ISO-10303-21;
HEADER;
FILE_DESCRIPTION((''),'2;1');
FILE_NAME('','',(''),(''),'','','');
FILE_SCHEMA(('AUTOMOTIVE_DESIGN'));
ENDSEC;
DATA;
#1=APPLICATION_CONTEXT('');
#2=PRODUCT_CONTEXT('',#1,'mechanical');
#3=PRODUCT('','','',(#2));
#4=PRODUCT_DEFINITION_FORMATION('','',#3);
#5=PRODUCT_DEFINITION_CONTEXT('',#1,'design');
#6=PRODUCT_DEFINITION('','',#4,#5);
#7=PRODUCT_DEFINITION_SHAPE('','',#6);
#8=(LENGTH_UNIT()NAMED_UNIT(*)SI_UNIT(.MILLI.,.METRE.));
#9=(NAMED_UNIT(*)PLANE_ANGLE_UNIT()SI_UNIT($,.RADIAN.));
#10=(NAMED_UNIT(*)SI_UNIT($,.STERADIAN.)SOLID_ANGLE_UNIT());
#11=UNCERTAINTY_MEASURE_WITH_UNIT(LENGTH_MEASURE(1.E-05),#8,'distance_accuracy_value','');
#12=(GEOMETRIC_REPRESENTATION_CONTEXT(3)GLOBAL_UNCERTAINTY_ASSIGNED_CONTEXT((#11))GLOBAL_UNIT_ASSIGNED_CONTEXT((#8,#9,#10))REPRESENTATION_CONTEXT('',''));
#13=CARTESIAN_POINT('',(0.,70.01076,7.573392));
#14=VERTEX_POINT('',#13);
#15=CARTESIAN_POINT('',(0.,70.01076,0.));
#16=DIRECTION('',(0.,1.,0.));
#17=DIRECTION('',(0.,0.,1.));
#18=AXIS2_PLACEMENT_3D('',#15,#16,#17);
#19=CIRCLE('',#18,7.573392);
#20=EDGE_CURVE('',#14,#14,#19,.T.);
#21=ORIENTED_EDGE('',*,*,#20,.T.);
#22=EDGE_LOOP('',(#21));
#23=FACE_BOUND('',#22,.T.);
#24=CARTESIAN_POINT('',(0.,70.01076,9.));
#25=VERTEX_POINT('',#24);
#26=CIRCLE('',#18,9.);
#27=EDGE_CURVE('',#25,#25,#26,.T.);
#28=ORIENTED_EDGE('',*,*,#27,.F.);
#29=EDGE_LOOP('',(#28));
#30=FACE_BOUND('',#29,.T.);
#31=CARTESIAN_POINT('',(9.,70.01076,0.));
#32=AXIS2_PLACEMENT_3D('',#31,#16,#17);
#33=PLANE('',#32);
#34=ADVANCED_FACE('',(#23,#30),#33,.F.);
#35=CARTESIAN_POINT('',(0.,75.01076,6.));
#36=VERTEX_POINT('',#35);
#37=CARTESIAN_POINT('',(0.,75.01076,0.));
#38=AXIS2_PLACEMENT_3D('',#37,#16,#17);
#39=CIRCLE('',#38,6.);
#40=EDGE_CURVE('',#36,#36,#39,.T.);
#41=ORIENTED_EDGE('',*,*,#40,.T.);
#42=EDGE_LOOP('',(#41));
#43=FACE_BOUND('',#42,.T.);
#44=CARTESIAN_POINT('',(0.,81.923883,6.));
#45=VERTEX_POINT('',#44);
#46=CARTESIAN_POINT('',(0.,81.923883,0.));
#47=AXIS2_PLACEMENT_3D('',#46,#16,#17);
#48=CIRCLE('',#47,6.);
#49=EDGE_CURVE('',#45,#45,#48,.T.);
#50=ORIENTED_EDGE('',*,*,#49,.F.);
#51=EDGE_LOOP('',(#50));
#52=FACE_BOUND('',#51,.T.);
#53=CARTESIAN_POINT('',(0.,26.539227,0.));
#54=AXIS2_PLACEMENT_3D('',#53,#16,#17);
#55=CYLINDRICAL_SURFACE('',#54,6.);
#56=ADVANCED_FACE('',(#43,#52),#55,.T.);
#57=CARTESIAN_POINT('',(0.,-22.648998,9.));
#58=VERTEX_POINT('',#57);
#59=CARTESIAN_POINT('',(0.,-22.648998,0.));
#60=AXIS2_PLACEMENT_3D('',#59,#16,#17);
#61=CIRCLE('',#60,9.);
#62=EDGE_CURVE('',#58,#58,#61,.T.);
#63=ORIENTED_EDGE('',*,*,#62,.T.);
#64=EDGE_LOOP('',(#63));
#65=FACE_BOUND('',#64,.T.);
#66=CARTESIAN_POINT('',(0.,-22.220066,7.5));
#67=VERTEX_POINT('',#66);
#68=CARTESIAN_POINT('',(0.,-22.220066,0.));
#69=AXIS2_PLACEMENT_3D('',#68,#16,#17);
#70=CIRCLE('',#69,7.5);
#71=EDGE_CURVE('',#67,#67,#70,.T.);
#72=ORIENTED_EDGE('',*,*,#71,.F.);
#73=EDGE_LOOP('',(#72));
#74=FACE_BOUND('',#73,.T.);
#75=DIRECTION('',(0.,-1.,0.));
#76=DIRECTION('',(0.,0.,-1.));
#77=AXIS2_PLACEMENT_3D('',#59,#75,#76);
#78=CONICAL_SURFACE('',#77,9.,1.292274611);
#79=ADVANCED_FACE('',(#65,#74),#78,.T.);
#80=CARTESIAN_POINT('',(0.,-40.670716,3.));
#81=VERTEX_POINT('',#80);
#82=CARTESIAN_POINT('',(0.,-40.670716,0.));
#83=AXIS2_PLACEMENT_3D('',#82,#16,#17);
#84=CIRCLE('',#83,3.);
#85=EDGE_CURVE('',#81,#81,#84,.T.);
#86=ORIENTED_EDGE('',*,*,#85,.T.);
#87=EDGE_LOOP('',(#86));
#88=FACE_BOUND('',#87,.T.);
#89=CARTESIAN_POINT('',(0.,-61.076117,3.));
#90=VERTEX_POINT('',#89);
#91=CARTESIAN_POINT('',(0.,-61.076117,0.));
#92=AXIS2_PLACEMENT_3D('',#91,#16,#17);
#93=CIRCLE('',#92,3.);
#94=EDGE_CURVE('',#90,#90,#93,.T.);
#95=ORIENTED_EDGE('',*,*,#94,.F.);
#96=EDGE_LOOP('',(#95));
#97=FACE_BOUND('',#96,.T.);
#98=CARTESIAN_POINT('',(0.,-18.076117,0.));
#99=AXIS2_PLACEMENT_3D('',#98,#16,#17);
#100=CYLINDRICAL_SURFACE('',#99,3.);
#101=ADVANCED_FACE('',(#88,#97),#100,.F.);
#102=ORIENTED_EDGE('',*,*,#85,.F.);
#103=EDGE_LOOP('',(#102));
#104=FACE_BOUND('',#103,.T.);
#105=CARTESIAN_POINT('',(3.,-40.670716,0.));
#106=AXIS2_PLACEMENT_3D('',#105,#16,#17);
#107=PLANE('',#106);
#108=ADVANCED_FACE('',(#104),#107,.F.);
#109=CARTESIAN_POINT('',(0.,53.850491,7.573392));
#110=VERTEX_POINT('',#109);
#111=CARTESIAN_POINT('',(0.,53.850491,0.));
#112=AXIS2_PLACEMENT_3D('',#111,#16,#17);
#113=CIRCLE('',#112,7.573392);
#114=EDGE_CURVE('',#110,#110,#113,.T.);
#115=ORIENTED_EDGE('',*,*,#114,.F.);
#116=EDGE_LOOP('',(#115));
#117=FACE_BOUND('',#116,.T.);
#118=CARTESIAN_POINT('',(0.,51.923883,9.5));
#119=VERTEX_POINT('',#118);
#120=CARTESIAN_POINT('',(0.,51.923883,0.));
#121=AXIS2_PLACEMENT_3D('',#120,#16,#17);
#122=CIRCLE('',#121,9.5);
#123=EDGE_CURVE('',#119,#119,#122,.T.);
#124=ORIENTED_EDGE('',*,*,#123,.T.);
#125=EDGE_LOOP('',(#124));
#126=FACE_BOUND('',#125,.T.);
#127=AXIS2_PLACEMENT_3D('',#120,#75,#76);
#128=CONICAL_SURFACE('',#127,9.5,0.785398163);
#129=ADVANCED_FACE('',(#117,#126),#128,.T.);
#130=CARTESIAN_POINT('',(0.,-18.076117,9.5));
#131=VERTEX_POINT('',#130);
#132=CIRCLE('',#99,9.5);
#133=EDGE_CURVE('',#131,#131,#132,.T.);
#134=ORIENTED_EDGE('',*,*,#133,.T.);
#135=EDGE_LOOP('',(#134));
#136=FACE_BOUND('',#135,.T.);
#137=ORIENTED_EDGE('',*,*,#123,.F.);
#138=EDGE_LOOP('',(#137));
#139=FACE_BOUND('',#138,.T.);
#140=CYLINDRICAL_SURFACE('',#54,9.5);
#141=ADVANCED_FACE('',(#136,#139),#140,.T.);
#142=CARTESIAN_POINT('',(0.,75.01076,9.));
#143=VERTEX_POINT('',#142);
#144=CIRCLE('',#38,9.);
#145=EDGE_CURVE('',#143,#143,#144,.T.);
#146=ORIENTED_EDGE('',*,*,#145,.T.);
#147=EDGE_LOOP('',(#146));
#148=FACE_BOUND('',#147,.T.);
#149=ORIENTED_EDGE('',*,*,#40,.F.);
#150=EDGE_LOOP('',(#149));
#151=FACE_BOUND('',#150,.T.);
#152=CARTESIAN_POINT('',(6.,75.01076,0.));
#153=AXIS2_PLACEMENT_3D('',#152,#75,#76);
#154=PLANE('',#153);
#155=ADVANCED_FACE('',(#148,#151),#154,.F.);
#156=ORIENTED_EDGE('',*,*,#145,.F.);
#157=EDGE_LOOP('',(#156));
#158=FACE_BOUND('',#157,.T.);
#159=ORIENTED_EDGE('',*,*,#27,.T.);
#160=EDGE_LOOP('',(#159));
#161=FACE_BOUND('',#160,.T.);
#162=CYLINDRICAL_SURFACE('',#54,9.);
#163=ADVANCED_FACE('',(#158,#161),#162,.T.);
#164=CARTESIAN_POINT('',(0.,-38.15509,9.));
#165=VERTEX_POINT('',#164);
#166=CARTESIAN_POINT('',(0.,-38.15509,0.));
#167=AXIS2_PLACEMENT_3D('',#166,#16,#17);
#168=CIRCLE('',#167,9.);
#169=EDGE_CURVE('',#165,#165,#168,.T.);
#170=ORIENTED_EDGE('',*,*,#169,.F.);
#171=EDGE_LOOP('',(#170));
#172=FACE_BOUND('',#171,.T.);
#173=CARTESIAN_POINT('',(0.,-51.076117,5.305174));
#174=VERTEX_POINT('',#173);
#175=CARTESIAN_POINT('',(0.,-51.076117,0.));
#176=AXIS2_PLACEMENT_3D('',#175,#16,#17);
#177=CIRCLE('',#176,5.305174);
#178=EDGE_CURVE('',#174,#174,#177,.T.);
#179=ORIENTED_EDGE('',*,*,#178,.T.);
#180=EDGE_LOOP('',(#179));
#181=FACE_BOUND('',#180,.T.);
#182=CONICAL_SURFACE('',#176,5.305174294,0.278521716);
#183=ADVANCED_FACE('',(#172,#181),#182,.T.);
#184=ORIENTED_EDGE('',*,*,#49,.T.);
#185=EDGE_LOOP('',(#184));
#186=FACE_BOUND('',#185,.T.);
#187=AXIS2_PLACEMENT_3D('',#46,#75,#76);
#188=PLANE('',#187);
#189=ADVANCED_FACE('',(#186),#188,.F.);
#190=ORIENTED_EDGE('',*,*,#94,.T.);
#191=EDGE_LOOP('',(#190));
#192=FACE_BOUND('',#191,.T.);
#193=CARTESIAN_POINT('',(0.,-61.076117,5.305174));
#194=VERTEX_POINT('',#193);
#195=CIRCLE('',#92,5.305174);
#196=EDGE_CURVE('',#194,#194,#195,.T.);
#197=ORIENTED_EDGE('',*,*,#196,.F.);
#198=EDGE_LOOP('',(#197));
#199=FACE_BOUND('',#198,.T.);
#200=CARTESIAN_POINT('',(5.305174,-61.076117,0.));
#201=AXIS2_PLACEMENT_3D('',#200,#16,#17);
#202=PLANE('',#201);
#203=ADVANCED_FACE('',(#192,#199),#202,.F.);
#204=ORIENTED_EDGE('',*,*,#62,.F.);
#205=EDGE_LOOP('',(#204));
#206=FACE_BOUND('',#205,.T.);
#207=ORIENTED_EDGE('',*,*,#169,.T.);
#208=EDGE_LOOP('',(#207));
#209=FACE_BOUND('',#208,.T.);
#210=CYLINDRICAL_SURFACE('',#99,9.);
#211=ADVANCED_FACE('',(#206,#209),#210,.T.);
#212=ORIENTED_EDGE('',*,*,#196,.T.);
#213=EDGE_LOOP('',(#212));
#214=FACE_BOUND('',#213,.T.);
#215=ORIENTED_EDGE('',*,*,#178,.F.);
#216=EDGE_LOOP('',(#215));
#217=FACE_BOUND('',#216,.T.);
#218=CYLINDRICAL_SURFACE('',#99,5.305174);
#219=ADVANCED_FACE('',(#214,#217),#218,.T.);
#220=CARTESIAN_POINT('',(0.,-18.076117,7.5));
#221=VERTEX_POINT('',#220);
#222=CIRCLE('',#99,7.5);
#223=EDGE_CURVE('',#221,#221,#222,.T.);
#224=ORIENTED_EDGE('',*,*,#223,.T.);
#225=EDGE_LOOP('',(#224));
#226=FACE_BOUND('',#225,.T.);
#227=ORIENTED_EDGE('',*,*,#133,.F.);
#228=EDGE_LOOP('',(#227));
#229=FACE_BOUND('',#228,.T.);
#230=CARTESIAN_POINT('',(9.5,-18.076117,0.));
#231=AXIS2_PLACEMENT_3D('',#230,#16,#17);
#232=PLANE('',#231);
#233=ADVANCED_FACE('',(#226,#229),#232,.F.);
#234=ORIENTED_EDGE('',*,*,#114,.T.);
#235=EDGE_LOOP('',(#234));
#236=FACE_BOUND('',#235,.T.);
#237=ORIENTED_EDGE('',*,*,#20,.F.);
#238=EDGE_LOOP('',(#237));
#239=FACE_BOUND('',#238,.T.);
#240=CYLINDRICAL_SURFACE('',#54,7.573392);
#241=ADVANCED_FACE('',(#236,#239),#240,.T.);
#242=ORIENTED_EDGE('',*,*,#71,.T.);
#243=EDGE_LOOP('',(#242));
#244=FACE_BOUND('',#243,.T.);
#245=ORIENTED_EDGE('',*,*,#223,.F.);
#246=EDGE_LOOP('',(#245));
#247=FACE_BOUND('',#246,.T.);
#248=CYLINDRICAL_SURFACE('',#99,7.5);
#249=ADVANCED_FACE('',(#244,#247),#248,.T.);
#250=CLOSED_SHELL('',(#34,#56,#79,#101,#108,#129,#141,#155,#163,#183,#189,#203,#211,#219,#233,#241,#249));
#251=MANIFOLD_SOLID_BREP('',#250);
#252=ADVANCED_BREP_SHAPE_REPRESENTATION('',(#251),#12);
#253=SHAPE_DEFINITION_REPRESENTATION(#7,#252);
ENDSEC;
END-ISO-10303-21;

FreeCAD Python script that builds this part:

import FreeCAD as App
import Part
import Sketcher

V = App.Vector
Q = App.Units.Quantity

doc = App.newDocument("Part")
body = doc.addObject("PartDesign::Body", "Body")

# Sketch on XY plane
sketch1 = body.newObject("Sketcher::SketchObject", "Sketch")
sketch1.AttachmentSupport = (doc.getObject("XY_Plane"), [""])
sketch1.MapMode = "FlatFace"
sketch1.addGeometry(Part.LineSegment(V(6, 81.9, 0), V(0, 81.9, 0)), False)
sketch1.addGeometry(Part.LineSegment(V(0, 81.9, 0), V(0, -18.1, 0)), False)
sketch1.addGeometry(Part.LineSegment(V(0, -18.1, 0), V(9.5, -18.1, 0)), False)
sketch1.addGeometry(Part.LineSegment(V(9.5, -18.1, 0), V(9.5, 51.9, 0)), False)
sketch1.addGeometry(Part.LineSegment(V(9.5, 51.9, 0), V(7.6, 53.9, 0)), False)
sketch1.addGeometry(Part.LineSegment(V(7.6, 53.9, 0), V(7.6, 70, 0)), False)
sketch1.addGeometry(Part.LineSegment(V(7.6, 70, 0), V(9, 70, 0)), False)
sketch1.addGeometry(Part.LineSegment(V(9, 70, 0), V(9, 75, 0)), False)
sketch1.addGeometry(Part.LineSegment(V(9, 75, 0), V(6, 75, 0)), False)
sketch1.addGeometry(Part.LineSegment(V(6, 75, 0), V(6, 81.9, 0)), False)
sketch1.addConstraint(Sketcher.Constraint("Coincident", 0, 2, 1, 1))
sketch1.addConstraint(Sketcher.Constraint("Coincident", 1, 2, 2, 1))
sketch1.addConstraint(Sketcher.Constraint("Coincident", 2, 2, 3, 1))
sketch1.addConstraint(Sketcher.Constraint("Coincident", 3, 2, 4, 1))
sketch1.addConstraint(Sketcher.Constraint("Coincident", 4, 2, 5, 1))
sketch1.addConstraint(Sketcher.Constraint("Coincident", 5, 2, 6, 1))
sketch1.addConstraint(Sketcher.Constraint("Coincident", 6, 2, 7, 1))
sketch1.addConstraint(Sketcher.Constraint("Coincident", 7, 2, 8, 1))
sketch1.addConstraint(Sketcher.Constraint("Coincident", 8, 2, 9, 1))
sketch1.addConstraint(Sketcher.Constraint("Coincident", 9, 2, 0, 1))
sketch1.addConstraint(Sketcher.Constraint("Horizontal", 0))
sketch1.addConstraint(Sketcher.Constraint("Vertical", 1))
sketch1.addConstraint(Sketcher.Constraint("Horizontal", 2))
sketch1.addConstraint(Sketcher.Constraint("Vertical", 3))
sketch1.addConstraint(Sketcher.Constraint("Vertical", 5))
sketch1.addConstraint(Sketcher.Constraint("Horizontal", 6))
sketch1.addConstraint(Sketcher.Constraint("Vertical", 7))
sketch1.addConstraint(Sketcher.Constraint("Horizontal", 8))
sketch1.addConstraint(Sketcher.Constraint("Vertical", 9))
sketch1.addConstraint(Sketcher.Constraint("PointOnObject", 0, 2, -2))
sketch1.addConstraint(Sketcher.Constraint("DistanceX", 0, 2, 0, 1, 6.0))
sketch1.addConstraint(Sketcher.Constraint("DistanceX", 8, 2, 8, 1, 3.0))
sketch1.addConstraint(Sketcher.Constraint("DistanceY", 1, 2, 1, 1, 100.0))
sketch1.addConstraint(Sketcher.Constraint("DistanceY", 3, 1, 3, 2, 70.0))
sketch1.addConstraint(Sketcher.Constraint("DistanceY", 7, 1, 7, 2, 5.0))
sketch1.addConstraint(Sketcher.Constraint("Angle", 4, Q("135 deg")))
sketch1.addConstraint(Sketcher.Constraint("DistanceX", 2, 1, 2, 2, 9.5))
sketch1.addConstraint(Sketcher.Constraint("DistanceX", 6, 1, 6, 2, 1.426608))
sketch1.addConstraint(Sketcher.Constraint("DistanceY", 5, 1, 5, 2, 16.160269))
sketch1.addConstraint(Sketcher.Constraint("DistanceY", -1, 1, 4, 2, 53.850491))
revolution = body.newObject("PartDesign::Revolution", "Revolution")
revolution.Profile = sketch1
revolution.ReferenceAxis = (sketch1, ["V_Axis"])
revolution.Angle = 360

# Sketch on XY plane
sketch2 = body.newObject("Sketcher::SketchObject", "Sketch001")
sketch2.AttachmentSupport = (doc.getObject("XY_Plane"), [""])
sketch2.MapMode = "FlatFace"
sketch2.addGeometry(Part.LineSegment(V(7.5, -22.2, 0), V(7.5, -18.1, 0)), False)
sketch2.addGeometry(Part.LineSegment(V(7.5, -18.1, 0), V(0, -18.1, 0)), False)
sketch2.addGeometry(Part.LineSegment(V(0, -18.1, 0), V(0, -40.7, 0)), False)
sketch2.addGeometry(Part.LineSegment(V(0, -40.7, 0), V(3, -40.7, 0)), False)
sketch2.addGeometry(Part.LineSegment(V(3, -40.7, 0), V(3, -61.1, 0)), False)
sketch2.addGeometry(Part.LineSegment(V(3, -61.1, 0), V(5.3, -61.1, 0)), False)
sketch2.addGeometry(Part.LineSegment(V(5.3, -61.1, 0), V(5.3, -51.1, 0)), False)
sketch2.addGeometry(Part.LineSegment(V(5.3, -51.1, 0), V(9, -38.2, 0)), False)
sketch2.addGeometry(Part.LineSegment(V(9, -38.2, 0), V(9, -22.6, 0)), False)
sketch2.addGeometry(Part.LineSegment(V(9, -22.6, 0), V(7.5, -22.2, 0)), False)
sketch2.addConstraint(Sketcher.Constraint("Coincident", 0, 2, 1, 1))
sketch2.addConstraint(Sketcher.Constraint("Coincident", 1, 2, 2, 1))
sketch2.addConstraint(Sketcher.Constraint("Coincident", 2, 2, 3, 1))
sketch2.addConstraint(Sketcher.Constraint("Coincident", 3, 2, 4, 1))
sketch2.addConstraint(Sketcher.Constraint("Coincident", 4, 2, 5, 1))
sketch2.addConstraint(Sketcher.Constraint("Coincident", 5, 2, 6, 1))
sketch2.addConstraint(Sketcher.Constraint("Coincident", 6, 2, 7, 1))
sketch2.addConstraint(Sketcher.Constraint("Coincident", 7, 2, 8, 1))
sketch2.addConstraint(Sketcher.Constraint("Coincident", 8, 2, 9, 1))
sketch2.addConstraint(Sketcher.Constraint("Coincident", 9, 2, 0, 1))
sketch2.addConstraint(Sketcher.Constraint("Vertical", 0))
sketch2.addConstraint(Sketcher.Constraint("Horizontal", 1))
sketch2.addConstraint(Sketcher.Constraint("Vertical", 2))
sketch2.addConstraint(Sketcher.Constraint("Horizontal", 3))
sketch2.addConstraint(Sketcher.Constraint("Vertical", 4))
sketch2.addConstraint(Sketcher.Constraint("Horizontal", 5))
sketch2.addConstraint(Sketcher.Constraint("Vertical", 6))
sketch2.addConstraint(Sketcher.Constraint("Vertical", 8))
sketch2.addConstraint(Sketcher.Constraint("PointOnObject", 1, 2, -2))
sketch2.addConstraint(Sketcher.Constraint("Perpendicular", 7, 9))
sketch2.addConstraint(Sketcher.Constraint("DistanceX", 3, 1, 3, 2, 3.0))
sketch2.addConstraint(Sketcher.Constraint("DistanceY", 6, 1, 6, 2, 10.0))
sketch2.addConstraint(Sketcher.Constraint("DistanceX", 1, 2, 1, 1, 7.5))
sketch2.addConstraint(Sketcher.Constraint("DistanceX", -1, 1, 7, 2, 9.0))
sketch2.addConstraint(Sketcher.Constraint("DistanceY", 4, 2, 1, 2, 43.0))
sketch2.addConstraint(Sketcher.Constraint("DistanceY", 2, 2, 2, 1, 22.594599))
sketch2.addConstraint(Sketcher.Constraint("DistanceY", 8, 2, -1, 1, 22.648998))
sketch2.addConstraint(Sketcher.Constraint("DistanceY", 0, 1, 0, 2, 4.143949))
sketch2.addConstraint(Sketcher.Constraint("DistanceY", 8, 1, 8, 2, 15.506092))
sketch2.addConstraint(Sketcher.Constraint("DistanceX", 5, 1, 5, 2, 2.305174))
revolution2 = body.newObject("PartDesign::Revolution", "Revolution001")
revolution2.Profile = sketch2
revolution2.ReferenceAxis = (sketch2, ["V_Axis"])
revolution2.Angle = 360

doc.recompute()
